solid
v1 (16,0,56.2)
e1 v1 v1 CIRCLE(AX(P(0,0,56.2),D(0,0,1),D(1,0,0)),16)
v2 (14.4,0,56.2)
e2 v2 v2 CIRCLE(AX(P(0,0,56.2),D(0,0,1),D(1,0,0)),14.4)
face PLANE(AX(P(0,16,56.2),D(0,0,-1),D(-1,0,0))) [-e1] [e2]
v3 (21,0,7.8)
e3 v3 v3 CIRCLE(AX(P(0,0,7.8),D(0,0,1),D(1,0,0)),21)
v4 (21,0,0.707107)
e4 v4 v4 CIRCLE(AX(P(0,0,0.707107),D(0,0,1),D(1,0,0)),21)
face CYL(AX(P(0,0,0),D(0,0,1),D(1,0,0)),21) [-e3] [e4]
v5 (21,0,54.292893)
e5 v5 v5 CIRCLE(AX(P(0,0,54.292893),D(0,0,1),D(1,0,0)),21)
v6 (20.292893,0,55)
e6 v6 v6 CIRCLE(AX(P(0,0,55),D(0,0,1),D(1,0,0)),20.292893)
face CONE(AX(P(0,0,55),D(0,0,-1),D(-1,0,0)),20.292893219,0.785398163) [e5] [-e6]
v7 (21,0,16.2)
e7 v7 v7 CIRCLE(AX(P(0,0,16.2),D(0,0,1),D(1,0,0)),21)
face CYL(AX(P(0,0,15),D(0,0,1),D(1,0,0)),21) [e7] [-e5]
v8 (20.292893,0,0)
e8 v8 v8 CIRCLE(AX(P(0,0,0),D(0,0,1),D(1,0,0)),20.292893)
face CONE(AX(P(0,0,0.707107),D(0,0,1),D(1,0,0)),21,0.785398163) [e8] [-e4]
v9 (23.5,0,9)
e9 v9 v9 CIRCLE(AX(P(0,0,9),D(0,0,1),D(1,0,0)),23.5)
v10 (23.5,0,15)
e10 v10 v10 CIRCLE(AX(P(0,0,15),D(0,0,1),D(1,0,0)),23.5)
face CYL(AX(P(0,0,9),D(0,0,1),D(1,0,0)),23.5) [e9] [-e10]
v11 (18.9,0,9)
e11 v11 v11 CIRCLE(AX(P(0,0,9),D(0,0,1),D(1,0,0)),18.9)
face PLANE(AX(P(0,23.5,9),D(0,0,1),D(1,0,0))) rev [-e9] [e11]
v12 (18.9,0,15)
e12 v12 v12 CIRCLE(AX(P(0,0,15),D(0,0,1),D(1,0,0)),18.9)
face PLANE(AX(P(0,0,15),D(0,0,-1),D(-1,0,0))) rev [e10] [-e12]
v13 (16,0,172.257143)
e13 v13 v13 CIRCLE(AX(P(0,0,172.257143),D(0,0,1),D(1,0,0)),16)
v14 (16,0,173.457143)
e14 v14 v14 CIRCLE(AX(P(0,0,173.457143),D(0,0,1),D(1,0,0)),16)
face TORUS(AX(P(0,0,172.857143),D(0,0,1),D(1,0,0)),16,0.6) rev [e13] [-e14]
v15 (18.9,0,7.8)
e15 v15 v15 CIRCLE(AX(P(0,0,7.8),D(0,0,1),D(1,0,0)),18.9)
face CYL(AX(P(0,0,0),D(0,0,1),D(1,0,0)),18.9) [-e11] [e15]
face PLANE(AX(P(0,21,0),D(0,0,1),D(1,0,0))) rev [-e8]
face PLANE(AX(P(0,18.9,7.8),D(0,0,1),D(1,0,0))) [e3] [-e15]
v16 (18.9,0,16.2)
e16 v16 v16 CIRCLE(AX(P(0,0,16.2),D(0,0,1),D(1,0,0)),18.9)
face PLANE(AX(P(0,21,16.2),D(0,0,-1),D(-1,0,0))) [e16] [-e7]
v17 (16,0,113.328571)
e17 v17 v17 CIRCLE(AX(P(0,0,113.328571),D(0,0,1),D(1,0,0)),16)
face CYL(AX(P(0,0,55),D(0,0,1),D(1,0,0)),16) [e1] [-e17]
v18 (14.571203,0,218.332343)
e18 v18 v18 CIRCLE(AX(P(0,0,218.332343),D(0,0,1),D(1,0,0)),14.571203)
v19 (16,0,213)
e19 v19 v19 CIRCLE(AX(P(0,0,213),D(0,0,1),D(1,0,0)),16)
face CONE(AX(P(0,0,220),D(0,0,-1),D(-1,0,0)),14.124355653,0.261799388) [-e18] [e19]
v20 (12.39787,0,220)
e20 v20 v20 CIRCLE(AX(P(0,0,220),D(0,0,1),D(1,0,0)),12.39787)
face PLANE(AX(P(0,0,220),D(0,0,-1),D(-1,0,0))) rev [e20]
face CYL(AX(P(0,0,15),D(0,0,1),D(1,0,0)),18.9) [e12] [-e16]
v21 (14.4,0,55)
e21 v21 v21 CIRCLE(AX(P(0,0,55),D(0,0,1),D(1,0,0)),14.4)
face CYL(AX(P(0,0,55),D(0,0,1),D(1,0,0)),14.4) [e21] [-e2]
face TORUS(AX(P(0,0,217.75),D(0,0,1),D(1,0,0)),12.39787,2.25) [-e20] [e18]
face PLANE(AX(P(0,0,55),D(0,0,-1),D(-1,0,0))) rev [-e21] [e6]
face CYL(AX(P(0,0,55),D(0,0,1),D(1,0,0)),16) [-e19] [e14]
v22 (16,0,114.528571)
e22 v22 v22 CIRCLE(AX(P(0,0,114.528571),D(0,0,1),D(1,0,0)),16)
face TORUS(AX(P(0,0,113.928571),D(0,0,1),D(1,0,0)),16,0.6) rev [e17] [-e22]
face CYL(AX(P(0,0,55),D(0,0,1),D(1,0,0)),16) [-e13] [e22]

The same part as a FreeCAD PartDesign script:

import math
import FreeCAD as App
import Part
import Sketcher

V = App.Vector
Q = App.Units.Quantity

doc = App.newDocument("Part")
body = doc.addObject("PartDesign::Body", "Body")

# Sketch on YZ plane
sketch1 = body.newObject("Sketcher::SketchObject", "Sketch")
sketch1.AttachmentSupport = (doc.getObject("YZ_Plane"), [""])
sketch1.MapMode = "FlatFace"
sketch1.addGeometry(Part.LineSegment(V(21, 9, 0), V(0, 9, 0)), False)
sketch1.addGeometry(Part.LineSegment(V(0, 9, 0), V(0, 0, 0)), False)
sketch1.addGeometry(Part.LineSegment(V(0, 0, 0), V(21, 0, 0)), False)
sketch1.addGeometry(Part.LineSegment(V(21, 0, 0), V(21, 9, 0)), False)
sketch1.addConstraint(Sketcher.Constraint("Coincident", 0, 2, 1, 1))
sketch1.addConstraint(Sketcher.Constraint("Coincident", 1, 2, 2, 1))
sketch1.addConstraint(Sketcher.Constraint("Coincident", 2, 2, 3, 1))
sketch1.addConstraint(Sketcher.Constraint("Coincident", 3, 2, 0, 1))
sketch1.addConstraint(Sketcher.Constraint("Horizontal", 0))
sketch1.addConstraint(Sketcher.Constraint("Vertical", 1))
sketch1.addConstraint(Sketcher.Constraint("Horizontal", 2))
sketch1.addConstraint(Sketcher.Constraint("Vertical", 3))
sketch1.addConstraint(Sketcher.Constraint("Coincident", 1, 2, -1, 1))
sketch1.addConstraint(Sketcher.Constraint("DistanceX", 0, 2, 0, 1, 21.0))
sketch1.addConstraint(Sketcher.Constraint("DistanceY", 1, 2, 1, 1, 9.0))
revolution = body.newObject("PartDesign::Revolution", "Revolution")
revolution.Profile = sketch1
revolution.ReferenceAxis = (sketch1, ["V_Axis"])
revolution.Angle = 360

# Sketch on YZ plane
sketch2 = body.newObject("Sketcher::SketchObject", "Sketch001")
sketch2.AttachmentSupport = (doc.getObject("YZ_Plane"), [""])
sketch2.MapMode = "FlatFace"
sketch2.addGeometry(Part.LineSegment(V(21, 0.707107, 0), V(20.292893, 0, 0)), False)
sketch2.addGeometry(Part.LineSegment(V(20.292893, 0, 0), V(21, 0, 0)), False)
sketch2.addGeometry(Part.LineSegment(V(21, 0, 0), V(21, 0.707107, 0)), False)
sketch2.addConstraint(Sketcher.Constraint("Coincident", 0, 2, 1, 1))
sketch2.addConstraint(Sketcher.Constraint("Coincident", 1, 2, 2, 1))
sketch2.addConstraint(Sketcher.Constraint("Coincident", 2, 2, 0, 1))
sketch2.addConstraint(Sketcher.Constraint("Horizontal", 1))
sketch2.addConstraint(Sketcher.Constraint("Vertical", 2))
sketch2.addConstraint(Sketcher.Constraint("PointOnObject", 0, 2, -1))
sketch2.addConstraint(Sketcher.Constraint("Equal", 1, 2))
sketch2.addConstraint(Sketcher.Constraint("Distance", 0, 1.0))
sketch2.addConstraint(Sketcher.Constraint("DistanceX", -1, 1, 1, 2, 21.0))
groove = body.newObject("PartDesign::Groove", "Groove")
groove.Profile = sketch2
groove.ReferenceAxis = (sketch2, ["V_Axis"])
groove.Angle = 360

# Sketch on YZ plane
sketch3 = body.newObject("Sketcher::SketchObject", "Sketch002")
sketch3.AttachmentSupport = (doc.getObject("YZ_Plane"), [""])
sketch3.MapMode = "FlatFace"
sketch3.addGeometry(Part.LineSegment(V(21, 9, 0), V(18.9, 9, 0)), False)
sketch3.addGeometry(Part.LineSegment(V(18.9, 9, 0), V(18.9, 7.8, 0)), False)
sketch3.addGeometry(Part.LineSegment(V(18.9, 7.8, 0), V(21, 7.8, 0)), False)
sketch3.addGeometry(Part.LineSegment(V(21, 7.8, 0), V(21, 9, 0)), False)
sketch3.addConstraint(Sketcher.Constraint("Coincident", 0, 2, 1, 1))
sketch3.addConstraint(Sketcher.Constraint("Coincident", 1, 2, 2, 1))
sketch3.addConstraint(Sketcher.Constraint("Coincident", 2, 2, 3, 1))
sketch3.addConstraint(Sketcher.Constraint("Coincident", 3, 2, 0, 1))
sketch3.addConstraint(Sketcher.Constraint("Horizontal", 0))
sketch3.addConstraint(Sketcher.Constraint("Vertical", 1))
sketch3.addConstraint(Sketcher.Constraint("Horizontal", 2))
sketch3.addConstraint(Sketcher.Constraint("Vertical", 3))
sketch3.addConstraint(Sketcher.Constraint("DistanceX", 0, 2, 0, 1, 2.1))
sketch3.addConstraint(Sketcher.Constraint("DistanceY", 1, 2, 1, 1, 1.2))
sketch3.addConstraint(Sketcher.Constraint("DistanceY", -1, 1, 0, 2, 9.0))
sketch3.addConstraint(Sketcher.Constraint("DistanceX", -1, 1, 2, 2, 21.0))
groove2 = body.newObject("PartDesign::Groove", "Groove001")
groove2.Profile = sketch3
groove2.ReferenceAxis = (sketch3, ["V_Axis"])
groove2.Angle = 360

# Sketch on YZ plane
sketch4 = body.newObject("Sketcher::SketchObject", "Sketch003")
sketch4.AttachmentSupport = (doc.getObject("YZ_Plane"), [""])
sketch4.MapMode = "FlatFace"
sketch4.addGeometry(Part.LineSegment(V(23.5, 15, 0), V(0, 15, 0)), False)
sketch4.addGeometry(Part.LineSegment(V(0, 15, 0), V(0, 9, 0)), False)
sketch4.addGeometry(Part.LineSegment(V(0, 9, 0), V(23.5, 9, 0)), False)
sketch4.addGeometry(Part.LineSegment(V(23.5, 9, 0), V(23.5, 15, 0)), False)
sketch4.addConstraint(Sketcher.Constraint("Coincident", 0, 2, 1, 1))
sketch4.addConstraint(Sketcher.Constraint("Coincident", 1, 2, 2, 1))
sketch4.addConstraint(Sketcher.Constraint("Coincident", 2, 2, 3, 1))
sketch4.addConstraint(Sketcher.Constraint("Coincident", 3, 2, 0, 1))
sketch4.addConstraint(Sketcher.Constraint("Horizontal", 0))
sketch4.addConstraint(Sketcher.Constraint("Vertical", 1))
sketch4.addConstraint(Sketcher.Constraint("Horizontal", 2))
sketch4.addConstraint(Sketcher.Constraint("Vertical", 3))
sketch4.addConstraint(Sketcher.Constraint("PointOnObject", 0, 2, -2))
sketch4.addConstraint(Sketcher.Constraint("DistanceY", 1, 2, 1, 1, 6.0))
sketch4.addConstraint(Sketcher.Constraint("DistanceX", 0, 2, 0, 1, 23.5))
sketch4.addConstraint(Sketcher.Constraint("DistanceY", -1, 1, 0, 2, 15.0))
revolution2 = body.newObject("PartDesign::Revolution", "Revolution001")
revolution2.Profile = sketch4
revolution2.ReferenceAxis = (sketch4, ["V_Axis"])
revolution2.Angle = 360

# Sketch on YZ plane
sketch5 = body.newObject("Sketcher::SketchObject", "Sketch004")
sketch5.AttachmentSupport = (doc.getObject("YZ_Plane"), [""])
sketch5.MapMode = "FlatFace"
sketch5.addGeometry(Part.LineSegment(V(21, 55, 0), V(0, 55, 0)), False)
sketch5.addGeometry(Part.LineSegment(V(0, 55, 0), V(0, 15, 0)), False)
sketch5.addGeometry(Part.LineSegment(V(0, 15, 0), V(21, 15, 0)), False)
sketch5.addGeometry(Part.LineSegment(V(21, 15, 0), V(21, 55, 0)), False)
sketch5.addConstraint(Sketcher.Constraint("Coincident", 0, 2, 1, 1))
sketch5.addConstraint(Sketcher.Constraint("Coincident", 1, 2, 2, 1))
sketch5.addConstraint(Sketcher.Constraint("Coincident", 2, 2, 3, 1))
sketch5.addConstraint(Sketcher.Constraint("Coincident", 3, 2, 0, 1))
sketch5.addConstraint(Sketcher.Constraint("Horizontal", 0))
sketch5.addConstraint(Sketcher.Constraint("Vertical", 1))
sketch5.addConstraint(Sketcher.Constraint("Horizontal", 2))
sketch5.addConstraint(Sketcher.Constraint("Vertical", 3))
sketch5.addConstraint(Sketcher.Constraint("PointOnObject", 0, 2, -2))
sketch5.addConstraint(Sketcher.Constraint("DistanceX", 0, 2, 0, 1, 21.0))
sketch5.addConstraint(Sketcher.Constraint("DistanceY", 1, 2, 1, 1, 40.0))
sketch5.addConstraint(Sketcher.Constraint("DistanceY", -1, 1, 0, 2, 55.0))
revolution3 = body.newObject("PartDesign::Revolution", "Revolution002")
revolution3.Profile = sketch5
revolution3.ReferenceAxis = (sketch5, ["V_Axis"])
revolution3.Angle = 360

# Sketch on YZ plane
sketch6 = body.newObject("Sketcher::SketchObject", "Sketch005")
sketch6.AttachmentSupport = (doc.getObject("YZ_Plane"), [""])
sketch6.MapMode = "FlatFace"
sketch6.addGeometry(Part.LineSegment(V(21, 16.2, 0), V(18.9, 16.2, 0)), False)
sketch6.addGeometry(Part.LineSegment(V(18.9, 16.2, 0), V(18.9, 15, 0)), False)
sketch6.addGeometry(Part.LineSegment(V(18.9, 15, 0), V(21, 15, 0)), False)
sketch6.addGeometry(Part.LineSegment(V(21, 15, 0), V(21, 16.2, 0)), False)
sketch6.addConstraint(Sketcher.Constraint("Coincident", 0, 2, 1, 1))
sketch6.addConstraint(Sketcher.Constraint("Coincident", 1, 2, 2, 1))
sketch6.addConstraint(Sketcher.Constraint("Coincident", 2, 2, 3, 1))
sketch6.addConstraint(Sketcher.Constraint("Coincident", 3, 2, 0, 1))
sketch6.addConstraint(Sketcher.Constraint("Horizontal", 0))
sketch6.addConstraint(Sketcher.Constraint("Vertical", 1))
sketch6.addConstraint(Sketcher.Constraint("Horizontal", 2))
sketch6.addConstraint(Sketcher.Constraint("Vertical", 3))
sketch6.addConstraint(Sketcher.Constraint("DistanceX", 0, 2, 0, 1, 2.1))
sketch6.addConstraint(Sketcher.Constraint("DistanceY", 1, 2, 1, 1, 1.2))
sketch6.addConstraint(Sketcher.Constraint("DistanceY", -1, 1, 1, 2, 15.0))
sketch6.addConstraint(Sketcher.Constraint("DistanceX", -1, 1, 2, 2, 21.0))
groove3 = body.newObject("PartDesign::Groove", "Groove002")
groove3.Profile = sketch6
groove3.ReferenceAxis = (sketch6, ["V_Axis"])
groove3.Angle = 360

# Sketch on YZ plane
sketch7 = body.newObject("Sketcher::SketchObject", "Sketch006")
sketch7.AttachmentSupport = (doc.getObject("YZ_Plane"), [""])
sketch7.MapMode = "FlatFace"
sketch7.addGeometry(Part.LineSegment(V(20.292893, 55, 0), V(21, 54.292893, 0)), False)
sketch7.addGeometry(Part.LineSegment(V(21, 54.292893, 0), V(21, 55, 0)), False)
sketch7.addGeometry(Part.LineSegment(V(21, 55, 0), V(20.292893, 55, 0)), False)
sketch7.addConstraint(Sketcher.Constraint("Coincident", 0, 2, 1, 1))
sketch7.addConstraint(Sketcher.Constraint("Coincident", 1, 2, 2, 1))
sketch7.addConstraint(Sketcher.Constraint("Coincident", 2, 2, 0, 1))
sketch7.addConstraint(Sketcher.Constraint("Vertical", 1))
sketch7.addConstraint(Sketcher.Constraint("Horizontal", 2))
sketch7.addConstraint(Sketcher.Constraint("Equal", 2, 1))
sketch7.addConstraint(Sketcher.Constraint("Distance", 0, 1.0))
sketch7.addConstraint(Sketcher.Constraint("DistanceX", -1, 1, 0, 2, 21.0))
sketch7.addConstraint(Sketcher.Constraint("DistanceY", -1, 1, 1, 2, 55.0))
groove4 = body.newObject("PartDesign::Groove", "Groove003")
groove4.Profile = sketch7
groove4.ReferenceAxis = (sketch7, ["V_Axis"])
groove4.Angle = 360

# Sketch on YZ plane
sketch8 = body.newObject("Sketcher::SketchObject", "Sketch007")
sketch8.AttachmentSupport = (doc.getObject("YZ_Plane"), [""])
sketch8.MapMode = "FlatFace"
sketch8.addGeometry(Part.LineSegment(V(16, 220, 0), V(0, 220, 0)), False)
sketch8.addGeometry(Part.LineSegment(V(0, 220, 0), V(0, 55, 0)), False)
sketch8.addGeometry(Part.LineSegment(V(0, 55, 0), V(16, 55, 0)), False)
sketch8.addGeometry(Part.LineSegment(V(16, 55, 0), V(16, 220, 0)), False)
sketch8.addConstraint(Sketcher.Constraint("Coincident", 0, 2, 1, 1))
sketch8.addConstraint(Sketcher.Constraint("Coincident", 1, 2, 2, 1))
sketch8.addConstraint(Sketcher.Constraint("Coincident", 2, 2, 3, 1))
sketch8.addConstraint(Sketcher.Constraint("Coincident", 3, 2, 0, 1))
sketch8.addConstraint(Sketcher.Constraint("Horizontal", 0))
sketch8.addConstraint(Sketcher.Constraint("Vertical", 1))
sketch8.addConstraint(Sketcher.Constraint("Horizontal", 2))
sketch8.addConstraint(Sketcher.Constraint("Vertical", 3))
sketch8.addConstraint(Sketcher.Constraint("PointOnObject", 0, 2, -2))
sketch8.addConstraint(Sketcher.Constraint("DistanceX", 0, 2, 0, 1, 16.0))
sketch8.addConstraint(Sketcher.Constraint("DistanceY", 1, 2, 1, 1, 165.0))
sketch8.addConstraint(Sketcher.Constraint("DistanceY", -1, 1, 0, 2, 220.0))
revolution4 = body.newObject("PartDesign::Revolution", "Revolution003")
revolution4.Profile = sketch8
revolution4.ReferenceAxis = (sketch8, ["V_Axis"])
revolution4.Angle = 360

# Sketch on YZ plane
sketch9 = body.newObject("Sketcher::SketchObject", "Sketch008")
sketch9.AttachmentSupport = (doc.getObject("YZ_Plane"), [""])
sketch9.MapMode = "FlatFace"
sketch9.addGeometry(Part.LineSegment(V(16, 56.2, 0), V(14.4, 56.2, 0)), False)
sketch9.addGeometry(Part.LineSegment(V(14.4, 56.2, 0), V(14.4, 55, 0)), False)
sketch9.addGeometry(Part.LineSegment(V(14.4, 55, 0), V(16, 55, 0)), False)
sketch9.addGeometry(Part.LineSegment(V(16, 55, 0), V(16, 56.2, 0)), False)
sketch9.addConstraint(Sketcher.Constraint("Coincident", 0, 2, 1, 1))
sketch9.addConstraint(Sketcher.Constraint("Coincident", 1, 2, 2, 1))
sketch9.addConstraint(Sketcher.Constraint("Coincident", 2, 2, 3, 1))
sketch9.addConstraint(Sketcher.Constraint("Coincident", 3, 2, 0, 1))
sketch9.addConstraint(Sketcher.Constraint("Horizontal", 0))
sketch9.addConstraint(Sketcher.Constraint("Vertical", 1))
sketch9.addConstraint(Sketcher.Constraint("Horizontal", 2))
sketch9.addConstraint(Sketcher.Constraint("Vertical", 3))
sketch9.addConstraint(Sketcher.Constraint("DistanceX", 0, 2, 0, 1, 1.6))
sketch9.addConstraint(Sketcher.Constraint("DistanceY", 1, 2, 1, 1, 1.2))
sketch9.addConstraint(Sketcher.Constraint("DistanceY", -1, 1, 1, 2, 55.0))
sketch9.addConstraint(Sketcher.Constraint("DistanceX", -1, 1, 2, 2, 16.0))
groove5 = body.newObject("PartDesign::Groove", "Groove004")
groove5.Profile = sketch9
groove5.ReferenceAxis = (sketch9, ["V_Axis"])
groove5.Angle = 360

# Sketch on YZ plane
sketch10 = body.newObject("Sketcher::SketchObject", "Sketch009")
sketch10.AttachmentSupport = (doc.getObject("YZ_Plane"), [""])
sketch10.MapMode = "FlatFace"
sketch10.addGeometry(Part.LineSegment(V(14.124356, 220, 0), V(16, 213, 0)), False)
sketch10.addGeometry(Part.LineSegment(V(16, 213, 0), V(16, 220, 0)), False)
sketch10.addGeometry(Part.LineSegment(V(16, 220, 0), V(14.124356, 220, 0)), False)
sketch10.addConstraint(Sketcher.Constraint("Coincident", 0, 2, 1, 1))
sketch10.addConstraint(Sketcher.Constraint("Coincident", 1, 2, 2, 1))
sketch10.addConstraint(Sketcher.Constraint("Coincident", 2, 2, 0, 1))
sketch10.addConstraint(Sketcher.Constraint("Vertical", 1))
sketch10.addConstraint(Sketcher.Constraint("Horizontal", 2))
sketch10.addConstraint(Sketcher.Constraint("DistanceY", 1, 1, 1, 2, 7.0))
sketch10.addConstraint(Sketcher.Constraint("Angle", 0, Q("-75 deg")))
sketch10.addConstraint(Sketcher.Constraint("DistanceX", -1, 1, 0, 2, 16.0))
sketch10.addConstraint(Sketcher.Constraint("DistanceY", -1, 1, 0, 2, 213.0))
groove6 = body.newObject("PartDesign::Groove", "Groove005")
groove6.Profile = sketch10
groove6.ReferenceAxis = (sketch10, ["V_Axis"])
groove6.Angle = 360

# Sketch on YZ plane
sketch11 = body.newObject("Sketcher::SketchObject", "Sketch010")
sketch11.AttachmentSupport = (doc.getObject("YZ_Plane"), [""])
sketch11.MapMode = "FlatFace"
sketch11.addGeometry(Part.LineSegment(V(14.571203, 218.332343, 0), V(14.124356, 220, 0)), False)
sketch11.addGeometry(Part.LineSegment(V(14.124356, 220, 0), V(12.39787, 220, 0)), False)
sketch11.addGeometry(Part.ArcOfCircle(Part.Circle(V(12.39787, 217.75, 0), V(0, 0, 1), 2.25), math.radians(15), math.radians(90)), False)
sketch11.addConstraint(Sketcher.Constraint("Coincident", 0, 2, 1, 1))
sketch11.addConstraint(Sketcher.Constraint("Tangent", 1, 2, 2, 2))
sketch11.addConstraint(Sketcher.Constraint("Tangent", 2, 1, 0, 1))
sketch11.addConstraint(Sketcher.Constraint("Horizontal", 1))
sketch11.addConstraint(Sketcher.Constraint("Angle", 0, Q("105 deg")))
sketch11.addConstraint(Sketcher.Constraint("Radius", 2, 2.25))
sketch11.addConstraint(Sketcher.Constraint("DistanceY", -1, 1, 0, 2, 220.0))
sketch11.addConstraint(Sketcher.Constraint("DistanceX", -1, 1, 2, 3, 12.39787))
groove7 = body.newObject("PartDesign::Groove", "Groove006")
groove7.Profile = sketch11
groove7.ReferenceAxis = (sketch11, ["V_Axis"])
groove7.Angle = 360

# Sketch on YZ plane
sketch12 = body.newObject("Sketcher::SketchObject", "Sketch011")
sketch12.AttachmentSupport = (doc.getObject("YZ_Plane"), [""])
sketch12.MapMode = "FlatFace"
sketch12.addGeometry(Part.LineSegment(V(16, 172.257143, 0), V(16, 173.457143, 0)), False)
sketch12.addGeometry(Part.ArcOfCircle(Part.Circle(V(16, 172.857143, 0), V(0, 0, 1), 0.6), math.radians(90), math.radians(270)), False)
sketch12.addConstraint(Sketcher.Constraint("Coincident", 0, 1, 1, 2))
sketch12.addConstraint(Sketcher.Constraint("Coincident", 1, 1, 0, 2))
sketch12.addConstraint(Sketcher.Constraint("Vertical", 0))
sketch12.addConstraint(Sketcher.Constraint("Vertical", 1, 3, 0, 1))
sketch12.addConstraint(Sketcher.Constraint("Radius", 1, 0.6))
sketch12.addConstraint(Sketcher.Constraint("DistanceX", -1, 1, 1, 3, 16.0))
sketch12.addConstraint(Sketcher.Constraint("DistanceY", -1, 1, 1, 3, 172.857143))
groove8 = body.newObject("PartDesign::Groove", "Groove007")
groove8.Profile = sketch12
groove8.ReferenceAxis = (sketch12, ["V_Axis"])
groove8.Angle = 360

# Sketch on YZ plane
sketch13 = body.newObject("Sketcher::SketchObject", "Sketch012")
sketch13.AttachmentSupport = (doc.getObject("YZ_Plane"), [""])
sketch13.MapMode = "FlatFace"
sketch13.addGeometry(Part.LineSegment(V(16, 113.328571, 0), V(16, 114.528571, 0)), False)
sketch13.addGeometry(Part.ArcOfCircle(Part.Circle(V(16, 113.928571, 0), V(0, 0, 1), 0.6), math.radians(90), math.radians(270)), False)
sketch13.addConstraint(Sketcher.Constraint("Coincident", 0, 1, 1, 2))
sketch13.addConstraint(Sketcher.Constraint("Coincident", 1, 1, 0, 2))
sketch13.addConstraint(Sketcher.Constraint("Vertical", 0))
sketch13.addConstraint(Sketcher.Constraint("Vertical", 1, 3, 0, 1))
sketch13.addConstraint(Sketcher.Constraint("Radius", 1, 0.6))
sketch13.addConstraint(Sketcher.Constraint("DistanceX", -1, 1, 1, 3, 16.0))
sketch13.addConstraint(Sketcher.Constraint("DistanceY", -1, 1, 1, 3, 113.928571))
groove9 = body.newObject("PartDesign::Groove", "Groove008")
groove9.Profile = sketch13
groove9.ReferenceAxis = (sketch13, ["V_Axis"])
groove9.Angle = 360

doc.recompute()
